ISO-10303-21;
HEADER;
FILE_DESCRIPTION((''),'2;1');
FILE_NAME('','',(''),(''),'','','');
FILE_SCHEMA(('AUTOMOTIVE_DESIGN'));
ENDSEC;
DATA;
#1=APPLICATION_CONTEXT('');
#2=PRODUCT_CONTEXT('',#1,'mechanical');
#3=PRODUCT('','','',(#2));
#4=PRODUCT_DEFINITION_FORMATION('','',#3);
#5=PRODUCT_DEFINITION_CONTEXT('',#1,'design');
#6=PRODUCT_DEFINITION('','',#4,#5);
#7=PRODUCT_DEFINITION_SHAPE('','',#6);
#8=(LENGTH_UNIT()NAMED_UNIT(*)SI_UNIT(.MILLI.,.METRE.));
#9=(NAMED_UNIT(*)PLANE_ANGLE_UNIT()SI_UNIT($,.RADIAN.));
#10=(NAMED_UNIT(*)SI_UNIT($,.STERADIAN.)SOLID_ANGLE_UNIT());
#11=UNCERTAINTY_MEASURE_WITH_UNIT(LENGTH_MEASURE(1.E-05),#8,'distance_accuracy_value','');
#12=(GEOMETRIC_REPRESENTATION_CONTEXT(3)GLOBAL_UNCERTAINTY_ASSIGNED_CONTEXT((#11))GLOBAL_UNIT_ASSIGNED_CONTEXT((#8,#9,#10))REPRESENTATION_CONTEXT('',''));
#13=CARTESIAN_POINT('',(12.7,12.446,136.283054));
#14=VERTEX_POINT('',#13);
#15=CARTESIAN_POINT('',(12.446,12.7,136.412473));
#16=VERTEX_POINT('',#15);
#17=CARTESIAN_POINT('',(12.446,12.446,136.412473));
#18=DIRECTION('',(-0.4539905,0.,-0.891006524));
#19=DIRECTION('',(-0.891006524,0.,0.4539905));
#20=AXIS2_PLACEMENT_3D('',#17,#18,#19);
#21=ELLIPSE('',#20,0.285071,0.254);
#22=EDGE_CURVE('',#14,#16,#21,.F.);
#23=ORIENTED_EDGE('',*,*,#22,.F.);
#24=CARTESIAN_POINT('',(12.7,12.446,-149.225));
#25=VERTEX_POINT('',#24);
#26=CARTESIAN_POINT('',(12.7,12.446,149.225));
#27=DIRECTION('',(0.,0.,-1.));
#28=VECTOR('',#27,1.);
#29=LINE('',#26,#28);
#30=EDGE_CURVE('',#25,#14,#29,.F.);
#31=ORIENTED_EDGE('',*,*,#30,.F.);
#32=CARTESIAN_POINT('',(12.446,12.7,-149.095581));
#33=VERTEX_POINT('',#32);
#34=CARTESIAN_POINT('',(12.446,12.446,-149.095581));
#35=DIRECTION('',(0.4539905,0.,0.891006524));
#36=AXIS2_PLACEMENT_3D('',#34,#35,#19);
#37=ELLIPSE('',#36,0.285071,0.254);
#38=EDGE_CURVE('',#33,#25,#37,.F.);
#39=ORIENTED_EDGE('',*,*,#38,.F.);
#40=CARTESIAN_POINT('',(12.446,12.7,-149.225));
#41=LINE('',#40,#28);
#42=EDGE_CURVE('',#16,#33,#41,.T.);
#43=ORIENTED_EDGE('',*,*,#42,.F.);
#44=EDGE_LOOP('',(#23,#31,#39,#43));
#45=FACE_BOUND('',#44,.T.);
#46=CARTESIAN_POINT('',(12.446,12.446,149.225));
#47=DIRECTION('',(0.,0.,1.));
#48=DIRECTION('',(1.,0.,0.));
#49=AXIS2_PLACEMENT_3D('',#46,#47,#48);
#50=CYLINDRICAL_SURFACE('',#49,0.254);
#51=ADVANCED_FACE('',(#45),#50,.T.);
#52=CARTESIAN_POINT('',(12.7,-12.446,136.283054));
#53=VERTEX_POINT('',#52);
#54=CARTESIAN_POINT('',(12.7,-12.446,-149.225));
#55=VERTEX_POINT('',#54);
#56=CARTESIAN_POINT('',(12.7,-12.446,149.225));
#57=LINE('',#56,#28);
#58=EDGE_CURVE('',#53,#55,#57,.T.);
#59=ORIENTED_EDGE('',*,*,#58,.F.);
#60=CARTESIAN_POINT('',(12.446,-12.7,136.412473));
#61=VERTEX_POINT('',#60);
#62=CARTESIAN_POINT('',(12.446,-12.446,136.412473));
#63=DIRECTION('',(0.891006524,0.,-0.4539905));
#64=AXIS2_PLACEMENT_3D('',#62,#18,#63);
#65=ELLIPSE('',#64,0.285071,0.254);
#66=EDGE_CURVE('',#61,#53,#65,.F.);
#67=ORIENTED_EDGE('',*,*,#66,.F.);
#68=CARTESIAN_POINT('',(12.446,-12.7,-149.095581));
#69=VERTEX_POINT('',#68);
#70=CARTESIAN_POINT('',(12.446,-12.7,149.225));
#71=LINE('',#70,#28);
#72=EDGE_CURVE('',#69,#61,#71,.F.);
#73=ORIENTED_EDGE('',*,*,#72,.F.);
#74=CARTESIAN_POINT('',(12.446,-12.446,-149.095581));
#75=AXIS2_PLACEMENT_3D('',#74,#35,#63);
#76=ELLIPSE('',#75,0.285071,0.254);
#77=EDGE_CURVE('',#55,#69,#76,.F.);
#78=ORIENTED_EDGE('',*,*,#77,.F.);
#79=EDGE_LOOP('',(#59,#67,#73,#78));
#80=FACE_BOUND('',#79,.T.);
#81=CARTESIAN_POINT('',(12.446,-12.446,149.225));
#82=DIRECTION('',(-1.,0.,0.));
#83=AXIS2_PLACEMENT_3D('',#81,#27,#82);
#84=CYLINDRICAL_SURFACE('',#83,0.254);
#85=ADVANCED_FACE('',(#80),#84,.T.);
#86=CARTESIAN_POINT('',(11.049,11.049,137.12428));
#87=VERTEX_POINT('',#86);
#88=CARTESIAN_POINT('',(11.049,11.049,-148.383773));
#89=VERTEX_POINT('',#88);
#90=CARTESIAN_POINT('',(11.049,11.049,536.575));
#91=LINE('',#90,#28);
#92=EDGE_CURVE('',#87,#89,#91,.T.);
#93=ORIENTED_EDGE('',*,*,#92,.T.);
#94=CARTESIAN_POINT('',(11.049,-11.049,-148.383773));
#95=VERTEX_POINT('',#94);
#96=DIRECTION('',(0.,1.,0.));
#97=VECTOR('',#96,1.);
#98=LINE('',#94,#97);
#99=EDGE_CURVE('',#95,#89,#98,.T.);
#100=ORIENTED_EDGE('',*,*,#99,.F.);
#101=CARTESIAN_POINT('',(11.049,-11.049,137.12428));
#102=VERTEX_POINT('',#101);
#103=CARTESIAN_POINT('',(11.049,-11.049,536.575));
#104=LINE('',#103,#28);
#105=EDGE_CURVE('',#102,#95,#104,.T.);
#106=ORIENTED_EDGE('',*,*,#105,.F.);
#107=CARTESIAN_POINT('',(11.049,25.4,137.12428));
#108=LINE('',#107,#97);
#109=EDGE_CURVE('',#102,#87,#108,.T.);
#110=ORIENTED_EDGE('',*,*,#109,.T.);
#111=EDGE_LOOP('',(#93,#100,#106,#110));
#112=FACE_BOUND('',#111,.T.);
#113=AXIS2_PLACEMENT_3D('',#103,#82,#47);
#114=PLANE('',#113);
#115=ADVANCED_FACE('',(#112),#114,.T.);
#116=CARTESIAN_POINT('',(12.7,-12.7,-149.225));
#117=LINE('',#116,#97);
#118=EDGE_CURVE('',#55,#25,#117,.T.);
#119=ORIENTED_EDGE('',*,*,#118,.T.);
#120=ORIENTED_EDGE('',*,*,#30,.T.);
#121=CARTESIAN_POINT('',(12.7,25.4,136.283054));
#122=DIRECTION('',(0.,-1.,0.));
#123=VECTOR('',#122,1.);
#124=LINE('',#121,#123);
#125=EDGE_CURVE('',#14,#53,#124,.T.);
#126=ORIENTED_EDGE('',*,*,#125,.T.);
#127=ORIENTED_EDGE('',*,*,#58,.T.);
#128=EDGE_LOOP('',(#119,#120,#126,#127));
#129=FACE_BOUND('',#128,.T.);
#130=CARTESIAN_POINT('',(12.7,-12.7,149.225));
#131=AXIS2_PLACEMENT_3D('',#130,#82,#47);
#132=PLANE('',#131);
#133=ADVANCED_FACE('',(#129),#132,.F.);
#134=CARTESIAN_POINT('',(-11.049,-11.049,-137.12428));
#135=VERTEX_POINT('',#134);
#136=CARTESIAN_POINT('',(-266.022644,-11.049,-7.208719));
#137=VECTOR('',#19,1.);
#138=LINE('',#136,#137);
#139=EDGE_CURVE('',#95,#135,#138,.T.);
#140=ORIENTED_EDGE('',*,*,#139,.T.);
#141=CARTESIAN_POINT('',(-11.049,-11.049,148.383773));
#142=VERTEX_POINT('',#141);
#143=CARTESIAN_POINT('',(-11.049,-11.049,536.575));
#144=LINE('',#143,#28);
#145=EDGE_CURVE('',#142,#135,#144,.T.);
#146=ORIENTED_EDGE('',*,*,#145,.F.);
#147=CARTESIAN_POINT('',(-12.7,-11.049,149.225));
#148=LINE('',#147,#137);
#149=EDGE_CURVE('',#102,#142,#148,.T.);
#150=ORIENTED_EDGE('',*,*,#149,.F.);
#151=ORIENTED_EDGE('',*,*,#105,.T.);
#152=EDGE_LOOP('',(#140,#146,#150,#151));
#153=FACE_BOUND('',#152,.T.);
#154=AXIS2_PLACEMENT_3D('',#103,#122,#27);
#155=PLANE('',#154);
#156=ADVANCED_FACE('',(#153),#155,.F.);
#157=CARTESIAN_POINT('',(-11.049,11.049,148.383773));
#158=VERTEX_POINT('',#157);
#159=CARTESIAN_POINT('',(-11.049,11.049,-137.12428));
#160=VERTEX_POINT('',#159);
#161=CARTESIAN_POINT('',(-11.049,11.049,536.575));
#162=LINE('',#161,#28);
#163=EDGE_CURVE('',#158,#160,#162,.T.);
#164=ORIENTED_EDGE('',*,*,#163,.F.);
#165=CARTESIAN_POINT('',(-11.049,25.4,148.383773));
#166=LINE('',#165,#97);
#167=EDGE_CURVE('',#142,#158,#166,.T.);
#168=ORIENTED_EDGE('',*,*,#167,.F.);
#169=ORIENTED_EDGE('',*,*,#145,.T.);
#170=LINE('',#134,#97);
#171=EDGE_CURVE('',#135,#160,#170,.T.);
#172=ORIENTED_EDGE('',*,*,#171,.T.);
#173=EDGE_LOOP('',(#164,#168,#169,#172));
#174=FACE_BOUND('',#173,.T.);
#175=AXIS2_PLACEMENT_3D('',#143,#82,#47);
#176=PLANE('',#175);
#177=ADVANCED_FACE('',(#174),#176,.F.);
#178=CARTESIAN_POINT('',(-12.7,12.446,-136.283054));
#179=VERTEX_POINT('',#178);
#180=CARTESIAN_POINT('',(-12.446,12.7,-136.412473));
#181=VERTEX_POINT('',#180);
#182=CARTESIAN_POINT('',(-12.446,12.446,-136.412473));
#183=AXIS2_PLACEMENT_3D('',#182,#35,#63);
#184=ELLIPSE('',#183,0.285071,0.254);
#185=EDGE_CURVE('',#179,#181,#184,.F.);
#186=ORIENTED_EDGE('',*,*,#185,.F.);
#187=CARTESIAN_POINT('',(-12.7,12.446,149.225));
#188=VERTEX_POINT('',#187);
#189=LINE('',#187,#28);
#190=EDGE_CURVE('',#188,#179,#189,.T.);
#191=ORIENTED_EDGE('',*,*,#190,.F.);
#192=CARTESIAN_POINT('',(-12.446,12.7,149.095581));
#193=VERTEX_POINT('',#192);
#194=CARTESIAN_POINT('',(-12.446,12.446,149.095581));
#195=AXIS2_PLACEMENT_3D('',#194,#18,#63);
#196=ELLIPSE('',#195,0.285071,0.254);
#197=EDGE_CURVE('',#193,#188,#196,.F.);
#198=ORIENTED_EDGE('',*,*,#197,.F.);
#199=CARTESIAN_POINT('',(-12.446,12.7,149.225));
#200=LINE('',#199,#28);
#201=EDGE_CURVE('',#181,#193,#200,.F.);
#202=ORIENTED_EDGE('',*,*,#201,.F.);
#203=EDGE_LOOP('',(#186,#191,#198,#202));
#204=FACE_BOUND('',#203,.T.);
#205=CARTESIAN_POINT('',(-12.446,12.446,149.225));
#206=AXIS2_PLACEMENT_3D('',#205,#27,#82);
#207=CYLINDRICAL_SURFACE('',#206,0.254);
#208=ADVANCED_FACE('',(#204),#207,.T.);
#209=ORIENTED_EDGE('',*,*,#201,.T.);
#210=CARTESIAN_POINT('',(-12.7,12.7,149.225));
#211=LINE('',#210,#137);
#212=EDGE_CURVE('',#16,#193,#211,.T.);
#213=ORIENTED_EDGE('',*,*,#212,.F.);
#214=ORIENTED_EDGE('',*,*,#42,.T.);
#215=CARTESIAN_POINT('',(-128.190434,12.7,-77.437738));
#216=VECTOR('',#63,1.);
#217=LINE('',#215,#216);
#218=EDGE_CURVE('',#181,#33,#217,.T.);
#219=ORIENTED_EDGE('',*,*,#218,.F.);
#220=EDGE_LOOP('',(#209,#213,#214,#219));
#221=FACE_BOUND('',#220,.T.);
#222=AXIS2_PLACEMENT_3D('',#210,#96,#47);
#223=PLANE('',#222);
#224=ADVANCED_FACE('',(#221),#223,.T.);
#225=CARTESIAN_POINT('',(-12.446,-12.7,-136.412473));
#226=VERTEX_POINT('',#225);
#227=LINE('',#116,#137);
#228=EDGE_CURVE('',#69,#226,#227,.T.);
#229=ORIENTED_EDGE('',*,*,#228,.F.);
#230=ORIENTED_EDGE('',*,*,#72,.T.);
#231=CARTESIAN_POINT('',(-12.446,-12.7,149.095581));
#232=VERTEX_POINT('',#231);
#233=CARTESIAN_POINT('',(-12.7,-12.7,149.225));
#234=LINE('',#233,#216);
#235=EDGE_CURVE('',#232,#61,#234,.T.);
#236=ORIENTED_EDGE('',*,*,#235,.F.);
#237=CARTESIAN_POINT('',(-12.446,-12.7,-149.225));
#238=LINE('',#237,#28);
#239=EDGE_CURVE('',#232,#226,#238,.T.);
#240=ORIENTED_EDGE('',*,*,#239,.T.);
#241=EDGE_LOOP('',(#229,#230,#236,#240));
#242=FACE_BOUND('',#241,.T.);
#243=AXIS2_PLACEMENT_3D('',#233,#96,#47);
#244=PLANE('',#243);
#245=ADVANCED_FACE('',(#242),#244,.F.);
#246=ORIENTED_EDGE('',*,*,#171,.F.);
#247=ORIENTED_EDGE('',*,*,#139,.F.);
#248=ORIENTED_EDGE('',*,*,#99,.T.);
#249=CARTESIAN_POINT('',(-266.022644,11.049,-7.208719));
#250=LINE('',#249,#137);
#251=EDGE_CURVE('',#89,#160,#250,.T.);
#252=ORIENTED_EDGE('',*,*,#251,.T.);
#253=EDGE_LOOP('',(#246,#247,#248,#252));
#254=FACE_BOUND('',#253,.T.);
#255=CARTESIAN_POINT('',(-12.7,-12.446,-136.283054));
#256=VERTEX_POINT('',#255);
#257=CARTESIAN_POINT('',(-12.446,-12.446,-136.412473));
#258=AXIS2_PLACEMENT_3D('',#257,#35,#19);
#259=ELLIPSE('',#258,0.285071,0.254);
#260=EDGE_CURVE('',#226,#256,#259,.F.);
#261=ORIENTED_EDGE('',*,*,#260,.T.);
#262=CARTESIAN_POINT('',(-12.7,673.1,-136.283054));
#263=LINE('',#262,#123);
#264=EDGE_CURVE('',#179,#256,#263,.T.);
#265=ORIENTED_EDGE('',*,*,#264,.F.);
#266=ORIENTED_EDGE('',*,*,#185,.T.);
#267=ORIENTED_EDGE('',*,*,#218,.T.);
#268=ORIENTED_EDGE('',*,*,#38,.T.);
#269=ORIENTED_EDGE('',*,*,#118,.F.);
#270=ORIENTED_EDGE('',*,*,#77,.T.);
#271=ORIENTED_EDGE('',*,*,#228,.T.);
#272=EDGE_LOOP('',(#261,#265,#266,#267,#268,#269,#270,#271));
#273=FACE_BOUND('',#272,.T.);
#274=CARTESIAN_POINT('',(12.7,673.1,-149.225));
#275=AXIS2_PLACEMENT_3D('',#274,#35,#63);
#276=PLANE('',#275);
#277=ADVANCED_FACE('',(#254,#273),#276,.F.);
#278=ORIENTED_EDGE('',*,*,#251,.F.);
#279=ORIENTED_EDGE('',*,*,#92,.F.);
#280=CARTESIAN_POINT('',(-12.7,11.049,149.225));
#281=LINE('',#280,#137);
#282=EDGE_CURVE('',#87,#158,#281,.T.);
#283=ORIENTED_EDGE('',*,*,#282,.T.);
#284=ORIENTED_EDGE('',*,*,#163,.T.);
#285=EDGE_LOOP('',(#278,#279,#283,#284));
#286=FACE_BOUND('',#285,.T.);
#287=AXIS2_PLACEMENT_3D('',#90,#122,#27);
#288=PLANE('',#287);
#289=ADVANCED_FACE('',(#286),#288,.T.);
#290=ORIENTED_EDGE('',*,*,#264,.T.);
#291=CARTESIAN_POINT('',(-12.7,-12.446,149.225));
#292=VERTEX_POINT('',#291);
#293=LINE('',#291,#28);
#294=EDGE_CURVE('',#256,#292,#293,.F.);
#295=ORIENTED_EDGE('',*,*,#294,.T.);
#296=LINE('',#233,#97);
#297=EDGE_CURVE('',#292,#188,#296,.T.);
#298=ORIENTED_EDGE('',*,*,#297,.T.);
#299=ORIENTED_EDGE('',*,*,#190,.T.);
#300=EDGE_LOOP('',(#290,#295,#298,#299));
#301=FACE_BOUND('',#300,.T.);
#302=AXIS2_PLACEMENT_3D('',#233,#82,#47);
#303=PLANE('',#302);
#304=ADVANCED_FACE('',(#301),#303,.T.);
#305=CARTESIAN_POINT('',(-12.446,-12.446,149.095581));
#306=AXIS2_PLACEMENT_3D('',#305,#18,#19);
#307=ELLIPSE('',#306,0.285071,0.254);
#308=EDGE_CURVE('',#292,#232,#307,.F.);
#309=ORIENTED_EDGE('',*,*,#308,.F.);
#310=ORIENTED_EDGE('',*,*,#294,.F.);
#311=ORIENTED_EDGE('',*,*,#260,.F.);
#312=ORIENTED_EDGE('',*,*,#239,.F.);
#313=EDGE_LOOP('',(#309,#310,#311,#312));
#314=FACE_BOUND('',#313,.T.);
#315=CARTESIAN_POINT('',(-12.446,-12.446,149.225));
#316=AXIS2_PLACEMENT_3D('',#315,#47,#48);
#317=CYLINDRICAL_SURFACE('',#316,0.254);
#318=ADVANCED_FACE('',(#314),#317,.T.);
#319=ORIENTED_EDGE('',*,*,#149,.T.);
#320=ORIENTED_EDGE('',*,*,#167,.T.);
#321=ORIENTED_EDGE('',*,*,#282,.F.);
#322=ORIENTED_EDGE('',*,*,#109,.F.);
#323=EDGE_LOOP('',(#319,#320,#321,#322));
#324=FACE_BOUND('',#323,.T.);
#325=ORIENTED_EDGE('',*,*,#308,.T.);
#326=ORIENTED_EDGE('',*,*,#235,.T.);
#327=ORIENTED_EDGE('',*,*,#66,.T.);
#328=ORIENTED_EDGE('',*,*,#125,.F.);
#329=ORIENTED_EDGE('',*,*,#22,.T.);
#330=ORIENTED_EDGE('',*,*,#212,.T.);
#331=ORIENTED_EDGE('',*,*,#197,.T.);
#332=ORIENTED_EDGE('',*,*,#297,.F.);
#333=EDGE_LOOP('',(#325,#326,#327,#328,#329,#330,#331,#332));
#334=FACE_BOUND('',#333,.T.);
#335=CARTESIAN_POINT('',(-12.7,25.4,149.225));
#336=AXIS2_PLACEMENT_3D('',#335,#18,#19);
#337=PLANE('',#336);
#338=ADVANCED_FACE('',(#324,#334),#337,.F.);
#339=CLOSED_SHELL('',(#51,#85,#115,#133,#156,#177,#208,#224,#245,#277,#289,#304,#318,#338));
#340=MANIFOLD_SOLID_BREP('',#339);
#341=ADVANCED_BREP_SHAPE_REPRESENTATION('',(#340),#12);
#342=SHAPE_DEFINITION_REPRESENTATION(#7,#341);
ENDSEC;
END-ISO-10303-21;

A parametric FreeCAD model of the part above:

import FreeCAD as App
import Part
import Sketcher
Q = App.Units.Quantity


def edges_at(feature, points):
    """Names of the edges that pass closest to the given points."""
    edges = feature.Shape.Edges
    near = lambda p: min(range(len(edges)), key=lambda i: edges[i].distToShape(Part.Vertex(*p))[0])
    return sorted({f"Edge{near(p) + 1}" for p in points})

doc = App.newDocument("Part")
body = doc.addObject("PartDesign::Body", "Body")

sketch1 = body.newObject("Sketcher::SketchObject", "Sketch")
sketch1.AttachmentSupport = (doc.getObject("XY_Plane"), [""])
sketch1.MapMode = "FlatFace"
sketch1.addGeometry([
    Part.LineSegment(App.Vector(-13, 13, 0), App.Vector(-13, -13, 0)),
    Part.LineSegment(App.Vector(-13, -13, 0), App.Vector(13, -13, 0)),
    Part.LineSegment(App.Vector(13, -13, 0), App.Vector(13, 13, 0)),
    Part.LineSegment(App.Vector(13, 13, 0), App.Vector(-13, 13, 0)),
], False)
sketch1.addConstraint([
    Sketcher.Constraint("Coincident", 0, 2, 1, 1),
    Sketcher.Constraint("Coincident", 1, 2, 2, 1),
    Sketcher.Constraint("Coincident", 2, 2, 3, 1),
    Sketcher.Constraint("Coincident", 3, 2, 0, 1),
    Sketcher.Constraint("Vertical", 0),
    Sketcher.Constraint("Horizontal", 1),
    Sketcher.Constraint("Vertical", 2),
    Sketcher.Constraint("Horizontal", 3),
    Sketcher.Constraint("Symmetric", 0, 2, 2, 2, -1, 1),
    Sketcher.Constraint("Equal", 3, 0),
    Sketcher.Constraint("DistanceX", 1, 1, 1, 2, Q("1 in")),
])
pad1 = body.newObject("PartDesign::Pad", "Pad")
pad1.Profile = sketch1
pad1.Length = Q("11.75 in")
pad1.Midplane = True
doc.recompute()

fillet = body.newObject("PartDesign::Fillet", "Fillet")
fillet.Base = (pad1, edges_at(pad1, [
    (-12.7, 12.7, 0),
    (-12.7, -12.7, 0),
    (12.7, -12.7, 0),
    (12.7, 12.7, 0),
]))
fillet.Radius = Q("0.01 in")

sketch2 = body.newObject("Sketcher::SketchObject", "Sketch001")
sketch2.AttachmentSupport = (doc.getObject("XZ_Plane"), [""])
sketch2.MapMode = "FlatFace"
sketch2.AttachmentOffset = App.Placement(App.Vector(0, 0, 0.5 * 25.4), App.Rotation())
sketch2.addGeometry([
    Part.LineSegment(App.Vector(-13, 149, 0), App.Vector(13, 136, 0)),
    Part.LineSegment(App.Vector(13, 136, 0), App.Vector(13, 149, 0)),
    Part.LineSegment(App.Vector(13, 149, 0), App.Vector(-13, 149, 0)),
], False)
sketch2.addConstraint([
    Sketcher.Constraint("Coincident", 0, 2, 1, 1),
    Sketcher.Constraint("Coincident", 1, 2, 2, 1),
    Sketcher.Constraint("Coincident", 2, 2, 0, 1),
    Sketcher.Constraint("Vertical", 1),
    Sketcher.Constraint("Horizontal", 2),
    Sketcher.Constraint("DistanceX", 2, 2, 2, 1, Q("1 in")),
    Sketcher.Constraint("Angle", 0, Q("-27 deg")),
    Sketcher.Constraint("DistanceX", -1, 1, 0, 2, Q("0.5 in")),
    Sketcher.Constraint("DistanceY", -1, 1, 1, 2, Q("5.875 in")),
])
pocket1 = body.newObject("PartDesign::Pocket", "Pocket")
pocket1.Profile = sketch2
pocket1.Length = Q("1.5 in")

sketch3 = body.newObject("Sketcher::SketchObject", "Sketch002")
sketch3.AttachmentSupport = (doc.getObject("XY_Plane"), [""])
sketch3.MapMode = "FlatFace"
sketch3.AttachmentOffset = App.Placement(App.Vector(0, 0, -5.875 * 25.4), App.Rotation())
sketch3.addGeometry([
    Part.LineSegment(App.Vector(11, 11, 0), App.Vector(11, -11, 0)),
    Part.LineSegment(App.Vector(11, -11, 0), App.Vector(-11, -11, 0)),
    Part.LineSegment(App.Vector(-11, -11, 0), App.Vector(-11, 11, 0)),
    Part.LineSegment(App.Vector(-11, 11, 0), App.Vector(11, 11, 0)),
], False)
sketch3.addConstraint([
    Sketcher.Constraint("Coincident", 0, 2, 1, 1),
    Sketcher.Constraint("Coincident", 1, 2, 2, 1),
    Sketcher.Constraint("Coincident", 2, 2, 3, 1),
    Sketcher.Constraint("Coincident", 3, 2, 0, 1),
    Sketcher.Constraint("Vertical", 0),
    Sketcher.Constraint("Horizontal", 1),
    Sketcher.Constraint("Vertical", 2),
    Sketcher.Constraint("Horizontal", 3),
    Sketcher.Constraint("Symmetric", 0, 2, 2, 2, -1, 1),
    Sketcher.Constraint("Equal", 3, 0),
    Sketcher.Constraint("DistanceX", 1, 2, 1, 1, Q("0.87 in")),
])
pocket2 = body.newObject("PartDesign::Pocket", "Pocket001")
pocket2.Profile = sketch3
pocket2.Length = Q("27 in")
pocket2.Reversed = True

sketch4 = body.newObject("Sketcher::SketchObject", "Sketch003")
sketch4.AttachmentSupport = (doc.getObject("XZ_Plane"), [""])
sketch4.MapMode = "FlatFace"
sketch4.AttachmentOffset = App.Placement(App.Vector(0, 0, 0.5 * 25.4), App.Rotation())
sketch4.addGeometry([
    Part.LineSegment(App.Vector(-13, -136, 0), App.Vector(-13, -149, 0)),
    Part.LineSegment(App.Vector(-13, -149, 0), App.Vector(13, -149, 0)),
    Part.LineSegment(App.Vector(13, -149, 0), App.Vector(-13, -136, 0)),
], False)
sketch4.addConstraint([
    Sketcher.Constraint("Coincident", 0, 2, 1, 1),
    Sketcher.Constraint("Coincident", 1, 2, 2, 1),
    Sketcher.Constraint("Coincident", 2, 2, 0, 1),
    Sketcher.Constraint("Vertical", 0),
    Sketcher.Constraint("Horizontal", 1),
    Sketcher.Constraint("DistanceX", 1, 1, 1, 2, Q("1 in")),
    Sketcher.Constraint("Angle", 2, Q("153 deg")),
    Sketcher.Constraint("DistanceX", 0, 2, -1, 1, Q("0.5 in")),
    Sketcher.Constraint("DistanceY", 0, 2, -1, 1, Q("5.875 in")),
])
pocket3 = body.newObject("PartDesign::Pocket", "Pocket002")
pocket3.Profile = sketch4
pocket3.Length = Q("27 in")

doc.recompute()
